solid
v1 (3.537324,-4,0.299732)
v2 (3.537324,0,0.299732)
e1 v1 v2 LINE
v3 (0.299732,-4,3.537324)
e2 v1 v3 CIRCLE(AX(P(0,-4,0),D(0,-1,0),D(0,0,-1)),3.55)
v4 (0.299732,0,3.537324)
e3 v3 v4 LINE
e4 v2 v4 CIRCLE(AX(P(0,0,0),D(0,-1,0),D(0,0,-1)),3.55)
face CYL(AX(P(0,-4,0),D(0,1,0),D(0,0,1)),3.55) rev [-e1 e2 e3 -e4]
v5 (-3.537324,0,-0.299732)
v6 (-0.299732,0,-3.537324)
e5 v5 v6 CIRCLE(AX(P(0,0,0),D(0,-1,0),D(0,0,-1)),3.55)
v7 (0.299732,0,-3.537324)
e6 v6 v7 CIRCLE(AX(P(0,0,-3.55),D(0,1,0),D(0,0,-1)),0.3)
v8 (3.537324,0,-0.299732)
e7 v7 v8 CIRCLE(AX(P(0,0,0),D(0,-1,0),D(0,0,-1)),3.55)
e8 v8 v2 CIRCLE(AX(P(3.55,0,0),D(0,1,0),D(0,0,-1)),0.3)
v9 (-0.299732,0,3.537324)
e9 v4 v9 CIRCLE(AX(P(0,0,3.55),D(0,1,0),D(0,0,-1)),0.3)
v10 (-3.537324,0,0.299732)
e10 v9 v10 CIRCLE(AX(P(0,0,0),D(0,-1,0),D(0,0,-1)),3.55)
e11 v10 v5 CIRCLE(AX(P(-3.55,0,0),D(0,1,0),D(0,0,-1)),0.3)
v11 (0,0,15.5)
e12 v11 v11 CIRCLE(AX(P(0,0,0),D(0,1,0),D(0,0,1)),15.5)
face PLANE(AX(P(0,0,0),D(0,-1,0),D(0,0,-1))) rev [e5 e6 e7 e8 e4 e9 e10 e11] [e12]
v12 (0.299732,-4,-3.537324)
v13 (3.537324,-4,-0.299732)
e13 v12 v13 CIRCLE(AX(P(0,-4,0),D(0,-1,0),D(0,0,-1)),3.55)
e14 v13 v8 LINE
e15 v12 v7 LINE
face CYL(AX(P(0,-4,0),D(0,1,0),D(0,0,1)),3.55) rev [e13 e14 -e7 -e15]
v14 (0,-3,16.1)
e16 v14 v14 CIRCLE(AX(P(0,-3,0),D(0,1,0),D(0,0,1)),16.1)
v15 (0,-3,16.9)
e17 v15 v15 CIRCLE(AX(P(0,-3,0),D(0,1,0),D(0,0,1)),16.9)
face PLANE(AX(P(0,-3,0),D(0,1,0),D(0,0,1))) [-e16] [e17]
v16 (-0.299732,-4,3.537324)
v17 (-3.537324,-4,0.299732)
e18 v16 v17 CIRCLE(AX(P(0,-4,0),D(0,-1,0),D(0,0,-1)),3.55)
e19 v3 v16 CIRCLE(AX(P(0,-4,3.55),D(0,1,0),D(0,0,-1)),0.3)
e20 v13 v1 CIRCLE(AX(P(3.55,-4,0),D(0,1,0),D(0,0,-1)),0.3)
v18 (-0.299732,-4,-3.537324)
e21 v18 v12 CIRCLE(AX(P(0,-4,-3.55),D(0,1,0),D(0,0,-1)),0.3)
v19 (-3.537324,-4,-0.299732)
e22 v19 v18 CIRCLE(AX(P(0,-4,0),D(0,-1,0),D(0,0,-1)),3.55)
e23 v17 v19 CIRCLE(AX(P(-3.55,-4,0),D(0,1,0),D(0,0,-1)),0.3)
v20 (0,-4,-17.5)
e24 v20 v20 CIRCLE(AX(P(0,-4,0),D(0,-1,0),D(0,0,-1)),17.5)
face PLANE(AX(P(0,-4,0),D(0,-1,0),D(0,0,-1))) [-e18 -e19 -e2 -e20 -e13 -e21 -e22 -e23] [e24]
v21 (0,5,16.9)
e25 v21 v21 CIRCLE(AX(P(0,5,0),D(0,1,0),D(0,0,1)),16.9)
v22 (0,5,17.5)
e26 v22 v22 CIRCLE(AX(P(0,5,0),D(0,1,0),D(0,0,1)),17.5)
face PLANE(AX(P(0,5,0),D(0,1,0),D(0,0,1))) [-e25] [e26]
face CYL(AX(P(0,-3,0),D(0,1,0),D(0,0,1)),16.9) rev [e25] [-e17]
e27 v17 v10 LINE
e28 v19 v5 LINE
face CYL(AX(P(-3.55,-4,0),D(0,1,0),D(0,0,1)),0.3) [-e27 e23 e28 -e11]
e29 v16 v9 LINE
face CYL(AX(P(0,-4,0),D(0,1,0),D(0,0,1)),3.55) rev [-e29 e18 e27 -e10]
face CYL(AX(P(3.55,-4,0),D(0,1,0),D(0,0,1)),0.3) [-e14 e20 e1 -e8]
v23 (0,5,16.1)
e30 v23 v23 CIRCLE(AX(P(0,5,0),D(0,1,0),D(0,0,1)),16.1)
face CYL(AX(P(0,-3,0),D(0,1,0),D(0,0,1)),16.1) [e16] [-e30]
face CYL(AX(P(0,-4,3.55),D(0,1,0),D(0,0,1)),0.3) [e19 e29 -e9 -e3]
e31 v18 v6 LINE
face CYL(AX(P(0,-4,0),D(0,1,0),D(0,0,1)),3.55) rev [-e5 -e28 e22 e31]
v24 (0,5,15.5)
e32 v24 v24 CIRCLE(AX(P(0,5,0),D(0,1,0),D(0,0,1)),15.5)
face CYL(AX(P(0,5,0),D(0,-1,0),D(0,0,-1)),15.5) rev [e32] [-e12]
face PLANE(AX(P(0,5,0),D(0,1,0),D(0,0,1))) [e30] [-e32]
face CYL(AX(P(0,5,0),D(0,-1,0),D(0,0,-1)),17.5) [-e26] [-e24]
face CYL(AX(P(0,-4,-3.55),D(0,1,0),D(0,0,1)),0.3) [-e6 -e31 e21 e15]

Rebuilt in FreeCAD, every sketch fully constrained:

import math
import FreeCAD as App
import Part
import Sketcher
from FreeCAD import Vector
Q = App.Units.Quantity

doc = App.newDocument("Part")
body = doc.addObject("PartDesign::Body", "Body")

# Sketch on XZ plane
sketch1 = body.newObject("Sketcher::SketchObject", "Sketch")
sketch1.AttachmentSupport = (doc.getObject("XZ_Plane"), [""])
sketch1.MapMode = "FlatFace"
sketch1.addGeometry([
    Part.Circle(Vector(0, 0, 0), Vector(0, 0, 1), 18),
    Part.Circle(Vector(0, 0, 0), Vector(0, 0, 1), 16),
], False)
sketch1.addConstraint([
    Sketcher.Constraint("Coincident", 0, 3, -1, 1),
    Sketcher.Constraint("Coincident", 1, 3, -1, 1),
    Sketcher.Constraint("Diameter", 0, Q("35 mm")),
    Sketcher.Constraint("Diameter", 1, Q("31 mm")),
])
pad1 = body.newObject("PartDesign::Pad", "Pad")
pad1.Profile = sketch1
pad1.Length = 5
pad1.Reversed = True

# Sketch on XZ plane
sketch2 = body.newObject("Sketcher::SketchObject", "Sketch001")
sketch2.AttachmentSupport = (doc.getObject("XZ_Plane"), [""])
sketch2.MapMode = "FlatFace"
sketch2.addGeometry([
    Part.Circle(Vector(0, 0, 0), Vector(0, 0, 1), 17.5),  # 0
    Part.ArcOfCircle(Part.Circle(Vector(0, 0, 0), Vector(0, 0, 1), 3.55), math.radians(95), math.radians(175)),  # 1
    Part.ArcOfCircle(Part.Circle(Vector(0, 3.55, 0), Vector(0, 0, 1), 0.3), math.radians(-178), math.radians(-2)),  # 2
    Part.ArcOfCircle(Part.Circle(Vector(0, 0, 0), Vector(0, 0, 1), 3.55), math.radians(5), math.radians(85)),  # 3
    Part.ArcOfCircle(Part.Circle(Vector(3.55, 0, 0), Vector(0, 0, 1), 0.3), math.radians(92), math.radians(268)),  # 4
    Part.ArcOfCircle(Part.Circle(Vector(0, 0, 0), Vector(0, 0, 1), 3.55), math.radians(-85), math.radians(-5)),  # 5
    Part.ArcOfCircle(Part.Circle(Vector(0, -3.55, 0), Vector(0, 0, 1), 0.3), math.radians(2), math.radians(178)),  # 6
    Part.ArcOfCircle(Part.Circle(Vector(0, 0, 0), Vector(0, 0, 1), 3.55), math.radians(-175), math.radians(-95)),  # 7
    Part.ArcOfCircle(Part.Circle(Vector(-3.55, 0, 0), Vector(0, 0, 1), 0.3), math.radians(-88), math.radians(88)),  # 8
], False)
sketch2.addConstraint([
    Sketcher.Constraint("Coincident", 1, 1, 2, 1),
    Sketcher.Constraint("Coincident", 2, 2, 3, 2),
    Sketcher.Constraint("Coincident", 3, 1, 4, 1),
    Sketcher.Constraint("Coincident", 4, 2, 5, 2),
    Sketcher.Constraint("Coincident", 5, 1, 6, 1),
    Sketcher.Constraint("Coincident", 6, 2, 7, 2),
    Sketcher.Constraint("Coincident", 7, 1, 8, 1),
    Sketcher.Constraint("Coincident", 8, 2, 1, 2),
    Sketcher.Constraint("Coincident", 0, 3, -1, 1),
    Sketcher.Constraint("Coincident", 1, 3, -1, 1),
    Sketcher.Constraint("Coincident", 3, 3, -1, 1),
    Sketcher.Constraint("Coincident", 5, 3, -1, 1),
    Sketcher.Constraint("Coincident", 7, 3, -1, 1),
    Sketcher.Constraint("Equal", 1, 3),
    Sketcher.Constraint("Equal", 2, 4),
    Sketcher.Constraint("Equal", 3, 5),
    Sketcher.Constraint("Equal", 4, 6),
    Sketcher.Constraint("Equal", 5, 7),
    Sketcher.Constraint("Equal", 6, 8),
    Sketcher.Constraint("Symmetric", 2, 3, 6, 3, -1, 1),
    Sketcher.Constraint("Symmetric", 4, 3, 8, 3, -1, 1),
    Sketcher.Constraint("PointOnObject", 2, 3, -2),
    Sketcher.Constraint("PointOnObject", 4, 3, -1),
    Sketcher.Constraint("Diameter", 0, Q("35 mm")),
    Sketcher.Constraint("Radius", 2, Q("0.3 mm")),
    Sketcher.Constraint("Radius", 1, Q("3.55 mm")),
    Sketcher.Constraint("DistanceY", -1, 1, 2, 3, Q("3.55 mm")),
    Sketcher.Constraint("DistanceX", -1, 1, 4, 3, Q("3.55 mm")),
])
pad2 = body.newObject("PartDesign::Pad", "Pad001")
pad2.Profile = sketch2
pad2.Length = 4

# Sketch on XZ plane
sketch3 = body.newObject("Sketcher::SketchObject", "Sketch002")
sketch3.AttachmentSupport = (doc.getObject("XZ_Plane"), [""])
sketch3.MapMode = "FlatFace"
sketch3.AttachmentOffset = App.Placement(Vector(0, 0, -5), App.Rotation())
sketch3.addGeometry([
    Part.Circle(Vector(0, 0, 0), Vector(0, 0, 1), 17),
    Part.Circle(Vector(0, 0, 0), Vector(0, 0, 1), 16),
], False)
sketch3.addConstraint([
    Sketcher.Constraint("Coincident", 0, 3, -1, 1),
    Sketcher.Constraint("Coincident", 1, 3, -1, 1),
    Sketcher.Constraint("Diameter", 0, Q("33.8 mm")),
    Sketcher.Constraint("Diameter", 1, Q("32.2 mm")),
])
pocket1 = body.newObject("PartDesign::Pocket", "Pocket")
pocket1.Profile = sketch3
pocket1.Length = 8
pocket1.Reversed = True

doc.recompute()
